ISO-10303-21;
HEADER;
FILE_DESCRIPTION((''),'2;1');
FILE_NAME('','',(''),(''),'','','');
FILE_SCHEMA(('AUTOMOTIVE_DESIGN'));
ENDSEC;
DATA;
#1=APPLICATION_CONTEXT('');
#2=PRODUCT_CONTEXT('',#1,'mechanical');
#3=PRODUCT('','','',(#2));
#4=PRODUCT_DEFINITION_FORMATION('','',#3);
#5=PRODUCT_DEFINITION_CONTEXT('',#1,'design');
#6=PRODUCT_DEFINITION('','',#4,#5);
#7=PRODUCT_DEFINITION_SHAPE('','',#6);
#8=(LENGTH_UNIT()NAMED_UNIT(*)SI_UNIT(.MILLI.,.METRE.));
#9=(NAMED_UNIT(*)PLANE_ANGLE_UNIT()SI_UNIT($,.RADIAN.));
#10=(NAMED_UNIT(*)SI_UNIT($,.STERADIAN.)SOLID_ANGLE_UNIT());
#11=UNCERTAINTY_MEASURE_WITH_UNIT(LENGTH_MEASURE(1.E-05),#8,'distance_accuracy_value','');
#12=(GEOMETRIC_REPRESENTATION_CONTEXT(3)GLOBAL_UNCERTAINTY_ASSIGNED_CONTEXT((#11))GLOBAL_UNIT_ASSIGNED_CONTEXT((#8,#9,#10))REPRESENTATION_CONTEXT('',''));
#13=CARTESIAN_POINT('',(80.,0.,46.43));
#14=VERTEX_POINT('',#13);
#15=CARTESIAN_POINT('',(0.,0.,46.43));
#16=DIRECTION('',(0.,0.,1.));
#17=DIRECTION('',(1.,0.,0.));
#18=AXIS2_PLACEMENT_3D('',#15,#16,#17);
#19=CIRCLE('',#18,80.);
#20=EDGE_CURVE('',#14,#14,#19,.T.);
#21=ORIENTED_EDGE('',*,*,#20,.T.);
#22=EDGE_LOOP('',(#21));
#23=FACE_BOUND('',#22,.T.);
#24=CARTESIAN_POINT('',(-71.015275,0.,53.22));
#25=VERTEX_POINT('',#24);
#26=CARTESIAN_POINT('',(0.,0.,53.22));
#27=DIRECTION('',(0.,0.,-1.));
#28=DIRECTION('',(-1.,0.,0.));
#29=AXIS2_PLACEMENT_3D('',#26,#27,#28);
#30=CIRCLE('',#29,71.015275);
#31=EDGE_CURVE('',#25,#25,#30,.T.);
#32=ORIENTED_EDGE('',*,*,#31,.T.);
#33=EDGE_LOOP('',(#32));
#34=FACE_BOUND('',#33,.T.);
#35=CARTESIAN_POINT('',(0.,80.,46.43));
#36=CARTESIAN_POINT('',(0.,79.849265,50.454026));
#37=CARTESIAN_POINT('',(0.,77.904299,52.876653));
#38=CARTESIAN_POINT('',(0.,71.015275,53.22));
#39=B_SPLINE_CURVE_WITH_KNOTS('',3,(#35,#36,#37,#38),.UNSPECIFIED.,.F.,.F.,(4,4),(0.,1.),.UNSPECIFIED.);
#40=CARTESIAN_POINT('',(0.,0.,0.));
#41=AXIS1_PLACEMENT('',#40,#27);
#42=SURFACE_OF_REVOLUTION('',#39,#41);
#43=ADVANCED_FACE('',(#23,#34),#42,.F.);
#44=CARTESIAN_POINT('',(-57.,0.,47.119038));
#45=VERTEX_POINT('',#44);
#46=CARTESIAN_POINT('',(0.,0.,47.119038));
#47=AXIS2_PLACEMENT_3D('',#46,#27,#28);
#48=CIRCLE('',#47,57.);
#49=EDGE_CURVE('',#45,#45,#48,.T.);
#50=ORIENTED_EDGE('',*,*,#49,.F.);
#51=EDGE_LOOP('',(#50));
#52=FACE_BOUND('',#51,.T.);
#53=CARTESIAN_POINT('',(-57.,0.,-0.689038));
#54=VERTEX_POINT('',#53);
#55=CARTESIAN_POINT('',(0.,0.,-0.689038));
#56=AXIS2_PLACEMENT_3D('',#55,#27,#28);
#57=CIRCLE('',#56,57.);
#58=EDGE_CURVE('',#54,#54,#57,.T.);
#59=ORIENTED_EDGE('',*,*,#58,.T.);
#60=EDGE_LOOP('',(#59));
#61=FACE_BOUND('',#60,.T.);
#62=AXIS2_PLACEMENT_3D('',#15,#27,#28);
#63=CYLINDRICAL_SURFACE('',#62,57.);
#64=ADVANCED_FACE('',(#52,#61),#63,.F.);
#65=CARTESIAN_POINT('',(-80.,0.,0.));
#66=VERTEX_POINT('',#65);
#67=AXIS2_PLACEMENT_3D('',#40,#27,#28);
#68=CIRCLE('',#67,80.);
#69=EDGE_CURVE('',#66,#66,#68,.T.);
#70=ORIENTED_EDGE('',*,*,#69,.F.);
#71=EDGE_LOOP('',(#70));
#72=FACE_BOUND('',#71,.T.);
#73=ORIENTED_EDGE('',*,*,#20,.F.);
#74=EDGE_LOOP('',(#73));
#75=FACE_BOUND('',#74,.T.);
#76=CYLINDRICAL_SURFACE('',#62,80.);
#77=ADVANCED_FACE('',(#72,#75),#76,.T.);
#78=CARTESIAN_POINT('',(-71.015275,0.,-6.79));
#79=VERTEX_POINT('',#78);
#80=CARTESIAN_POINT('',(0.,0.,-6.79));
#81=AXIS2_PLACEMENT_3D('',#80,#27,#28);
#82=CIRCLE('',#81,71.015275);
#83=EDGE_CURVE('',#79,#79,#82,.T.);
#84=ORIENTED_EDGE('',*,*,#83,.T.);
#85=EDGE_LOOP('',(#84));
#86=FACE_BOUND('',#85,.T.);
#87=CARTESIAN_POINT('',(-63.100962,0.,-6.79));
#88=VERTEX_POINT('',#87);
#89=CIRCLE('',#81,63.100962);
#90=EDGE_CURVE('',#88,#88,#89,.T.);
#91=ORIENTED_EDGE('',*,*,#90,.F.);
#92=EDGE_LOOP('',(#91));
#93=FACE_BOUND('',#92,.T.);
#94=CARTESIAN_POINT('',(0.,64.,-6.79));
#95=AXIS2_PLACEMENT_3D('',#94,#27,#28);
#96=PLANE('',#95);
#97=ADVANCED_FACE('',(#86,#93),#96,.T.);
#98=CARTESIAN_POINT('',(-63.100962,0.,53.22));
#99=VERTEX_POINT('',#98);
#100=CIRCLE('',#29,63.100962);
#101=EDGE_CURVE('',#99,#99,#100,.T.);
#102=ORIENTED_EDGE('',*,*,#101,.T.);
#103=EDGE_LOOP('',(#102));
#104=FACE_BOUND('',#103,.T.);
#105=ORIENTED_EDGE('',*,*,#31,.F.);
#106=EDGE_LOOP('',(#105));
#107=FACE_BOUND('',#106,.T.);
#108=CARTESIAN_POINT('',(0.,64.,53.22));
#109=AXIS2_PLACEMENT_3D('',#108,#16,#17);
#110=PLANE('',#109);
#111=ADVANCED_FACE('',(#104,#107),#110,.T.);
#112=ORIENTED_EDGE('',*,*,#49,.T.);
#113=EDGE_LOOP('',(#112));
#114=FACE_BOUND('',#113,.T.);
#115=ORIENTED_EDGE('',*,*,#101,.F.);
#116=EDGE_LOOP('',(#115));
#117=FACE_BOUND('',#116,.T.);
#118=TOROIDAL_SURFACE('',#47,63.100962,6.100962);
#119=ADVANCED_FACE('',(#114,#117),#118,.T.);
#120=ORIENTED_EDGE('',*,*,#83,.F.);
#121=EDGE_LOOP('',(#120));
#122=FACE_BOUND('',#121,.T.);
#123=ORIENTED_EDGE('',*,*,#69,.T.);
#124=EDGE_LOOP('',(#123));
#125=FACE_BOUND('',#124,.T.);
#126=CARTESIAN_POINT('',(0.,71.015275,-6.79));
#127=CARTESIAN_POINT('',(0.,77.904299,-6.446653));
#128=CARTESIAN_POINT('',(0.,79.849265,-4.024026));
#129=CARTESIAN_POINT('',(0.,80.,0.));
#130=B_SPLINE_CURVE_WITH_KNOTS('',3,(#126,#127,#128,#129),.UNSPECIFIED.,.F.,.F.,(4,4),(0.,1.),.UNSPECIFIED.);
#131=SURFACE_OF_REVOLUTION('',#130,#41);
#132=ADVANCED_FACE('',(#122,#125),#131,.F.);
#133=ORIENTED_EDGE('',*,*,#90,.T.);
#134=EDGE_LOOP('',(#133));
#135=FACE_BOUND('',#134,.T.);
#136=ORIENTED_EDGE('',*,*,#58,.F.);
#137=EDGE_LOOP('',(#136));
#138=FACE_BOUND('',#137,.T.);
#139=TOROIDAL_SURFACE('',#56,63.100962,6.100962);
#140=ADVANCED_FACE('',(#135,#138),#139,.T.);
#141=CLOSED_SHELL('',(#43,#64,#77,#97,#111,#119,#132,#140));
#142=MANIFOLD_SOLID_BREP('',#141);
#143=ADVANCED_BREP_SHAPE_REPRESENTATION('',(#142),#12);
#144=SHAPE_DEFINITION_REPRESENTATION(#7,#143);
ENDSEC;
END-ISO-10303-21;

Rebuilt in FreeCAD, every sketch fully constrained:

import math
import FreeCAD as App
import Part
import Sketcher
from FreeCAD import Vector
Q = App.Units.Quantity

doc = App.newDocument("Part")
body = doc.addObject("PartDesign::Body", "Body")

# Sketch on XY plane
sketch1 = body.newObject("Sketcher::SketchObject", "Sketch")
sketch1.AttachmentSupport = (doc.getObject("XY_Plane"), [""])
sketch1.MapMode = "FlatFace"
sketch1.addGeometry([
    Part.Circle(Vector(0, 0, 0), Vector(0, 0, 1), 80),
    Part.Circle(Vector(0, 0, 0), Vector(0, 0, 1), 57),
], False)
sketch1.addConstraint([
    Sketcher.Constraint("Coincident", 0, 3, -1, 1),
    Sketcher.Constraint("Coincident", 1, 3, -1, 1),
    Sketcher.Constraint("Diameter", 0, Q("160 mm")),
    Sketcher.Constraint("Diameter", 1, Q("114 mm")),
])
pad1 = body.newObject("PartDesign::Pad", "Pad")
pad1.Profile = sketch1
pad1.Length = 46.43

# Sketch on YZ plane
sketch2 = body.newObject("Sketcher::SketchObject", "Sketch001")
sketch2.AttachmentSupport = (doc.getObject("YZ_Plane"), [""])
sketch2.MapMode = "FlatFace"
sketch2.addGeometry([
    Part.LineSegment(Vector(57, 0, 0), Vector(57, -0.689038, 0)),  # 0
    Part.ArcOfCircle(Part.Circle(Vector(63.100962, -0.689038, 0), Vector(0, 0, 1), 6.100962), math.radians(180), math.radians(270)),  # 1
    Part.LineSegment(Vector(63.100962, -6.79, 0), Vector(71.015275, -6.79, 0)),  # 2
    Part.BSplineCurve([Vector(71.015275, -6.79, 0), Vector(77.904299, -6.446653, 0), Vector(79.849265, -4.024026, 0), Vector(80, 0, 0)], [4, 4], [0, 1], False, 3, [1, 1, 1, 1], False),  # 3
    Part.LineSegment(Vector(80, 0, 0), Vector(57, 0, 0)),  # 4
    Part.LineSegment(Vector(57, 47.119038, 0), Vector(57, 46.43, 0)),  # 5
    Part.LineSegment(Vector(57, 46.43, 0), Vector(80, 46.43, 0)),  # 6
    Part.BSplineCurve([Vector(71.015275, 53.22, 0), Vector(77.904299, 52.876653, 0), Vector(79.849265, 50.454026, 0), Vector(80, 46.43, 0)], [4, 4], [0, 1], False, 3, [1, 1, 1, 1], False),  # 7
    Part.LineSegment(Vector(71.015275, 53.22, 0), Vector(63.100962, 53.22, 0)),  # 8
    Part.ArcOfCircle(Part.Circle(Vector(63.100962, 47.119038, 0), Vector(0, 0, 1), 6.100962), math.radians(90), math.radians(180)),  # 9
], False)
sketch2.addConstraint([
    Sketcher.Constraint("Block", 3),
    Sketcher.Constraint("Block", 7),
    Sketcher.Constraint("Tangent", 0, 2, 1, 1),
    Sketcher.Constraint("Tangent", 1, 2, 2, 1),
    Sketcher.Constraint("Coincident", 2, 2, 3, 1),
    Sketcher.Constraint("Coincident", 3, 2, 4, 1),
    Sketcher.Constraint("Coincident", 4, 2, 0, 1),
    Sketcher.Constraint("Coincident", 5, 2, 6, 1),
    Sketcher.Constraint("Coincident", 6, 2, 7, 2),
    Sketcher.Constraint("Coincident", 7, 1, 8, 1),
    Sketcher.Constraint("Tangent", 8, 2, 9, 1),
    Sketcher.Constraint("Tangent", 9, 2, 5, 1),
    Sketcher.Constraint("Vertical", 0),
    Sketcher.Constraint("Horizontal", 2),
    Sketcher.Constraint("Horizontal", 4),
    Sketcher.Constraint("Vertical", 5),
    Sketcher.Constraint("Horizontal", 6),
    Sketcher.Constraint("Horizontal", 8),
    Sketcher.Constraint("Equal", 1, 9),
    Sketcher.Constraint("Vertical", 1, 3, 9, 3),
    Sketcher.Constraint("DistanceX", 4, 2, 4, 1, Q("23 mm")),
    Sketcher.Constraint("Radius", 1, Q("6.100962 mm")),
])
revolution = body.newObject("PartDesign::Revolution", "Revolution")
revolution.Profile = sketch2
revolution.ReferenceAxis = (sketch2, ["V_Axis"])
revolution.Angle = 360

doc.recompute()
